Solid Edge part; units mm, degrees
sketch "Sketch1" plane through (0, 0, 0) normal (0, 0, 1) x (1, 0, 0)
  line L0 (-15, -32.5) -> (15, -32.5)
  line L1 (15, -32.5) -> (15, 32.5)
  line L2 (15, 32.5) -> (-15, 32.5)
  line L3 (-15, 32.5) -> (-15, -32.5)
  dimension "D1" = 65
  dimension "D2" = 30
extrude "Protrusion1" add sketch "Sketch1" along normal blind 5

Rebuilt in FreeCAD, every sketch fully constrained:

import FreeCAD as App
import Part
import Sketcher


def add_polygon(sketch, points):
    """Adds a closed chain of lines whose ends are joined by coincident constraints."""
    first, n = sketch.GeometryCount, len(points)
    for a, b in zip(points, points[1:] + points[:1]):
        sketch.addGeometry(Part.LineSegment(App.Vector(*a, 0), App.Vector(*b, 0)), False)
    for i in range(n):
        sketch.addConstraint(Sketcher.Constraint("Coincident", first + i, 2, first + (i + 1) % n, 1))

doc = App.newDocument("Part")
params = doc.addObject("Spreadsheet::Sheet", "Params")
for row, (alias, value) in enumerate([
    ("sketch1_height", "65 mm"),
    ("pad1_length", "5 mm"),
], start=1):
    params.set(f"A{row}", alias)
    params.set(f"B{row}", "=" + value)
    params.setAlias(f"B{row}", alias)

body = doc.addObject("PartDesign::Body", "Body")

# Sketch on XY plane
sketch1 = doc.addObject("Sketcher::SketchObject", "Sketch")
body.addObject(sketch1)
sketch1.AttachmentSupport = (doc.XY_Plane, [""])
sketch1.MapMode = "FlatFace"
add_polygon(sketch1, [(-15, 32.5), (-15, -32.5), (15, -32.5), (15, 32.5)])  # lines 0-3
sketch1.addConstraint(Sketcher.Constraint("Vertical", 0))
sketch1.addConstraint(Sketcher.Constraint("Horizontal", 1))
sketch1.addConstraint(Sketcher.Constraint("Vertical", 2))
sketch1.addConstraint(Sketcher.Constraint("Horizontal", 3))
sketch1.addConstraint(Sketcher.Constraint("Symmetric", 0, 2, 2, 2, -1, 1))
sketch1.addConstraint(Sketcher.Constraint("DistanceX", 0, 2, -1, 1, 15.0))
sketch1.addConstraint(Sketcher.Constraint("DistanceY", 0, 2, 0, 1, 65.0))
sketch1.setExpression("Constraints[10]", "Params.sketch1_height")
pad1 = doc.addObject("PartDesign::Pad", "Pad")
body.addObject(pad1)
pad1.Profile = sketch1
pad1.setExpression("Length", "Params.pad1_length")

doc.recompute()
